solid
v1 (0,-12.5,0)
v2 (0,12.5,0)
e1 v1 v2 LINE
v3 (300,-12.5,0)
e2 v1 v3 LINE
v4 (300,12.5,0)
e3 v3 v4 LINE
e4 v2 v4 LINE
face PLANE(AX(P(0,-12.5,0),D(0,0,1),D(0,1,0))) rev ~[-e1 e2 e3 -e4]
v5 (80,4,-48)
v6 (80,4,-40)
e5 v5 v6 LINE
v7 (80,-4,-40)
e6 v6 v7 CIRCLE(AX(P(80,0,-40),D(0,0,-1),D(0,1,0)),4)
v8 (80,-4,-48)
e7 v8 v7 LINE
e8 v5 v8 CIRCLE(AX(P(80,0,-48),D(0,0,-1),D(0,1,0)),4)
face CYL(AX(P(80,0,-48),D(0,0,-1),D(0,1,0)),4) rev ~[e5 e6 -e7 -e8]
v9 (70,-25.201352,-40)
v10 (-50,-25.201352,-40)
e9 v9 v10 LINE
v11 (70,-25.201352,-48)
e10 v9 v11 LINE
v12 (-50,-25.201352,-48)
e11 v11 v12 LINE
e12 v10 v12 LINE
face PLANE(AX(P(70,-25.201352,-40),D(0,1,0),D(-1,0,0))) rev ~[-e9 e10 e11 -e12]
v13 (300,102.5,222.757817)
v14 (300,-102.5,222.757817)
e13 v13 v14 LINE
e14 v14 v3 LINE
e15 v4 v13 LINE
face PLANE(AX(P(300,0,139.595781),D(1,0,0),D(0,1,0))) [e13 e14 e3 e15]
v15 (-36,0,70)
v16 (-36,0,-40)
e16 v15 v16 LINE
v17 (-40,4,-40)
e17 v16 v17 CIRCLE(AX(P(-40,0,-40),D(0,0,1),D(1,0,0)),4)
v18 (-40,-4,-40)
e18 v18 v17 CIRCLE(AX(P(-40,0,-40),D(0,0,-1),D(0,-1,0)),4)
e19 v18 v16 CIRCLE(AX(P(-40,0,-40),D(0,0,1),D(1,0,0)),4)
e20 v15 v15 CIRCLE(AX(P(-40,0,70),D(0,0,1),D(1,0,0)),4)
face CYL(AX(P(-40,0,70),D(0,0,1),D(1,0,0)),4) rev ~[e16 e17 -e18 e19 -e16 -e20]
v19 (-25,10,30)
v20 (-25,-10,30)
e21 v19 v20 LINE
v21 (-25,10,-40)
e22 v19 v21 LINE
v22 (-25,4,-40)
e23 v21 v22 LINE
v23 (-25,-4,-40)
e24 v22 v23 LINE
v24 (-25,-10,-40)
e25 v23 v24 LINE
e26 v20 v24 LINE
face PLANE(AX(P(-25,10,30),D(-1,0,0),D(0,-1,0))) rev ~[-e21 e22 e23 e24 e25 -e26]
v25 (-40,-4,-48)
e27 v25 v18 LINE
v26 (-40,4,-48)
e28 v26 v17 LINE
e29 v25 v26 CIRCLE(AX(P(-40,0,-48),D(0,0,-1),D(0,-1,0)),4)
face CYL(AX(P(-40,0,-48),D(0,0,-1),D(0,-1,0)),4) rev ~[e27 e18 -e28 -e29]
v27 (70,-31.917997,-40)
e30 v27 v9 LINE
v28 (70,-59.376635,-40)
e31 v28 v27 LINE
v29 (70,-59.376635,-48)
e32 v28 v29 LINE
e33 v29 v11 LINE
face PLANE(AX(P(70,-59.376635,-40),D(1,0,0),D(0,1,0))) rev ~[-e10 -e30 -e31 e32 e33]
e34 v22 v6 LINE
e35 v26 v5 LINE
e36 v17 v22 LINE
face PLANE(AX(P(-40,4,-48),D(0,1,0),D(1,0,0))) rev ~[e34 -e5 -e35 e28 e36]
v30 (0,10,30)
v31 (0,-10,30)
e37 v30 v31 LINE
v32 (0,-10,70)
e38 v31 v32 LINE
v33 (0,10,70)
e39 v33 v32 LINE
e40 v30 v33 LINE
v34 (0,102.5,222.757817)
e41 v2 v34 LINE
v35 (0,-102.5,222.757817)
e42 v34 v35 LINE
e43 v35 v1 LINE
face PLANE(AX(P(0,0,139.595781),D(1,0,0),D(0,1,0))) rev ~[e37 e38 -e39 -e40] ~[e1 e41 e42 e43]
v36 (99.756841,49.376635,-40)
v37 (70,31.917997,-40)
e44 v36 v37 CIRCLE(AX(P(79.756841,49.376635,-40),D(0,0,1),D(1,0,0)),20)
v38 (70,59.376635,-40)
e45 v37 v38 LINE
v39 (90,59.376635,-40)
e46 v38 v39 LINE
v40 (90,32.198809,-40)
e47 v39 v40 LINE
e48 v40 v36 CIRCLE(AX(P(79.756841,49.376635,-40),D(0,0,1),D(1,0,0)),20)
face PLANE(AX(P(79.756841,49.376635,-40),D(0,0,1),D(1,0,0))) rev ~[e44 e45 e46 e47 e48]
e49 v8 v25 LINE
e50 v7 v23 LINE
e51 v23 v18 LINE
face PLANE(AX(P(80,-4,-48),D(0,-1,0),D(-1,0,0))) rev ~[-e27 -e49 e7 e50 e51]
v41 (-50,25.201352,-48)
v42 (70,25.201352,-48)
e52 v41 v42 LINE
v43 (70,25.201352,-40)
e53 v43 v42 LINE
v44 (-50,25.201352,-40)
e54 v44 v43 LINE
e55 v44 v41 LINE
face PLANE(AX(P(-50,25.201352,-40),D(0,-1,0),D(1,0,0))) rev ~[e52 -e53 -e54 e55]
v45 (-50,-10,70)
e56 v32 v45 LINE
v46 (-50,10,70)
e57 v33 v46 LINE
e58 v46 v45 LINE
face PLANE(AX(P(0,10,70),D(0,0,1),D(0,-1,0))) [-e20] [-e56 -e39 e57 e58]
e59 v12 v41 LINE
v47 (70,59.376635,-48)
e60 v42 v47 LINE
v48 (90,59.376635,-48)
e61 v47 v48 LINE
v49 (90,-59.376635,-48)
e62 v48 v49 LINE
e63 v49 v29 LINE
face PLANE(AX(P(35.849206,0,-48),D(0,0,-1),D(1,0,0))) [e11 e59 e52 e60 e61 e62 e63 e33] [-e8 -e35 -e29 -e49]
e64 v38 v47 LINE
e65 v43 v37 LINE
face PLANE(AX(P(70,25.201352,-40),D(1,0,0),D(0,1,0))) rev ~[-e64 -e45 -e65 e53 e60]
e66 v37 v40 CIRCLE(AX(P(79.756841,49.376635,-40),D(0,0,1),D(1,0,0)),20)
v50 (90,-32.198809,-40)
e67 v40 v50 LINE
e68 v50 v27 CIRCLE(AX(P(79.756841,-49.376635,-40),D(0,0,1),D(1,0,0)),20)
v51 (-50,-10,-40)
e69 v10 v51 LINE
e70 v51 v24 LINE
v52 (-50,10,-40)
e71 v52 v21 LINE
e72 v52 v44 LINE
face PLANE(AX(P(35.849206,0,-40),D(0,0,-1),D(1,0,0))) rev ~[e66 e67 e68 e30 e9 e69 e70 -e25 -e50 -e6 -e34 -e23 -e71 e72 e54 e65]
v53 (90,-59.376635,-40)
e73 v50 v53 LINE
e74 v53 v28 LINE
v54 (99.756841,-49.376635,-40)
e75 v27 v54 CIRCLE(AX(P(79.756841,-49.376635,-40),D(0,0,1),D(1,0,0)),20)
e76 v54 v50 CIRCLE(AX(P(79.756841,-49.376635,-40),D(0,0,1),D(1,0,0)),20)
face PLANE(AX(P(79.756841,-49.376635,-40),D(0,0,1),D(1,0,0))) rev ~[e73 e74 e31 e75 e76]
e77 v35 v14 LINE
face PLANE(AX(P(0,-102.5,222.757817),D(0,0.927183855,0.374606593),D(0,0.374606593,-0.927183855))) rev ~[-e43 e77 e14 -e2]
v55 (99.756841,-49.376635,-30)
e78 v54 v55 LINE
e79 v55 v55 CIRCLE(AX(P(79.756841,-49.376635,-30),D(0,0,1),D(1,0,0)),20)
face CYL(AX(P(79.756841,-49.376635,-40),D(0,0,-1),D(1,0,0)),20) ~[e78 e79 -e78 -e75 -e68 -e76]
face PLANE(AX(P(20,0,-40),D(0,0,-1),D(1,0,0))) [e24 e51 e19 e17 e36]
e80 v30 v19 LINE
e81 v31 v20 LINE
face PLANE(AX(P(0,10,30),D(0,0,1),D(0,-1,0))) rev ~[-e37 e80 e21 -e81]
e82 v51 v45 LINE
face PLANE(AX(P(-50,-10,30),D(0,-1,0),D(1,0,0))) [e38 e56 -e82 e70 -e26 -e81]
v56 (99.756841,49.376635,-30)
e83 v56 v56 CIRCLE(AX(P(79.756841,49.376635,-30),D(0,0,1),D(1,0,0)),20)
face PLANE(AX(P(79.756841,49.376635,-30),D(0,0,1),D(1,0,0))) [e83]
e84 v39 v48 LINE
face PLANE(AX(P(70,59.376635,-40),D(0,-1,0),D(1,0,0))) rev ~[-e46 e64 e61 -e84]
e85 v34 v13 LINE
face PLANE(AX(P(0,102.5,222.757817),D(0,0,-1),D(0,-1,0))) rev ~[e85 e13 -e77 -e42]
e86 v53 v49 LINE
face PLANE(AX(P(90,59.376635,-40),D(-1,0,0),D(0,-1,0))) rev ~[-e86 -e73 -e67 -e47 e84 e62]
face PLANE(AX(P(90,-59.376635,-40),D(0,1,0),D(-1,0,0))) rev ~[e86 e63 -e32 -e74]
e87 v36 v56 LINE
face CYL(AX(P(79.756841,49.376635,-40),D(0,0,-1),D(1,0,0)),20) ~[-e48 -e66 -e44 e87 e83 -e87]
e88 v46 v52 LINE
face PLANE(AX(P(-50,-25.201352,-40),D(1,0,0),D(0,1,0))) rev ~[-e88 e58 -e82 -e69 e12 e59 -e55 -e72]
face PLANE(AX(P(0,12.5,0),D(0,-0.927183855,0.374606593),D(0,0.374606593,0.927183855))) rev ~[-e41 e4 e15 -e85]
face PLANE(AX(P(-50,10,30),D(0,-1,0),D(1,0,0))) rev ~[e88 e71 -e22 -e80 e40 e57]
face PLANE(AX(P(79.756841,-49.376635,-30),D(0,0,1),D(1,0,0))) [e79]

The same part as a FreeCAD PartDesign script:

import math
import FreeCAD as App
import Part
import Sketcher
Q = App.Units.Quantity


def add_polygon(sketch, points):
    """Adds a closed chain of lines whose ends are joined by coincident constraints."""
    first, n = sketch.GeometryCount, len(points)
    for a, b in zip(points, points[1:] + points[:1]):
        sketch.addGeometry(Part.LineSegment(App.Vector(*a, 0), App.Vector(*b, 0)), False)
    for i in range(n):
        sketch.addConstraint(Sketcher.Constraint("Coincident", first + i, 2, first + (i + 1) % n, 1))

doc = App.newDocument("Part")
body = doc.addObject("PartDesign::Body", "Body")

# Sketch on YZ plane
sketch1 = body.newObject("Sketcher::SketchObject", "Sketch")
sketch1.AttachmentSupport = (doc.getObject("YZ_Plane"), [""])
sketch1.MapMode = "FlatFace"
add_polygon(sketch1, [(-102, 223), (-12, 0), (12, 0), (102, 223)])  # lines 0-3
sketch1.addConstraint(Sketcher.Constraint("Horizontal", 1))
sketch1.addConstraint(Sketcher.Constraint("Horizontal", 3))
sketch1.addConstraint(Sketcher.Constraint("Symmetric", 0, 2, 1, 2, -1, 1))
sketch1.addConstraint(Sketcher.Constraint("Equal", 0, 2))
sketch1.addConstraint(Sketcher.Constraint("DistanceX", 1, 1, 1, 2, 25.0))
sketch1.addConstraint(Sketcher.Constraint("DistanceX", 3, 2, 3, 1, 205.0))
sketch1.addConstraint(Sketcher.Constraint("Angle", 0, Q("-68 deg")))
pad1 = body.newObject("PartDesign::Pad", "Pad")
pad1.Profile = sketch1
pad1.Length = 300

# Sketch on YZ plane
sketch2 = body.newObject("Sketcher::SketchObject", "Sketch001")
sketch2.AttachmentSupport = (doc.getObject("YZ_Plane"), [""])
sketch2.MapMode = "FlatFace"
add_polygon(sketch2, [(10, 70), (10, 30), (-10, 30), (-10, 70)])  # lines 0-3
sketch2.addConstraint(Sketcher.Constraint("Vertical", 0))
sketch2.addConstraint(Sketcher.Constraint("Horizontal", 1))
sketch2.addConstraint(Sketcher.Constraint("Vertical", 2))
sketch2.addConstraint(Sketcher.Constraint("Horizontal", 3))
sketch2.addConstraint(Sketcher.Constraint("DistanceX", 1, 2, 1, 1, 20.0))
sketch2.addConstraint(Sketcher.Constraint("DistanceY", 0, 2, 0, 1, 40.0))
sketch2.addConstraint(Sketcher.Constraint("DistanceX", -1, 1, 0, 2, 10.0))
sketch2.addConstraint(Sketcher.Constraint("DistanceY", -1, 1, 0, 2, 30.0))
pad2 = body.newObject("PartDesign::Pad", "Pad001")
pad2.Profile = sketch2
pad2.Length = 50
pad2.Reversed = True

# Sketch on XY plane
sketch3 = body.newObject("Sketcher::SketchObject", "Sketch002")
sketch3.AttachmentSupport = (doc.getObject("XY_Plane"), [""])
sketch3.MapMode = "FlatFace"
sketch3.AttachmentOffset = App.Placement(App.Vector(0, 0, 30), App.Rotation())
add_polygon(sketch3, [(-50, -10), (-50, 10), (-25, 10), (-25, -10)])  # lines 0-3
sketch3.addConstraint(Sketcher.Constraint("Vertical", 0))
sketch3.addConstraint(Sketcher.Constraint("Horizontal", 1))
sketch3.addConstraint(Sketcher.Constraint("Vertical", 2))
sketch3.addConstraint(Sketcher.Constraint("Horizontal", 3))
sketch3.addConstraint(Sketcher.Constraint("DistanceX", 1, 1, 1, 2, 25.0))
sketch3.addConstraint(Sketcher.Constraint("DistanceY", 0, 1, 0, 2, 20.0))
sketch3.addConstraint(Sketcher.Constraint("DistanceX", 0, 2, -1, 1, 50.0))
sketch3.addConstraint(Sketcher.Constraint("DistanceY", -1, 1, 0, 2, 10.0))
pad3 = body.newObject("PartDesign::Pad", "Pad002")
pad3.Profile = sketch3
pad3.Length = 70
pad3.Reversed = True

# Sketch on XY plane
sketch4 = body.newObject("Sketcher::SketchObject", "Sketch003")
sketch4.AttachmentSupport = (doc.getObject("XY_Plane"), [""])
sketch4.MapMode = "FlatFace"
sketch4.AttachmentOffset = App.Placement(App.Vector(0, 0, 70), App.Rotation())
sketch4.addGeometry(Part.Circle(App.Vector(-40, 0, 0), App.Vector(0, 0, 1), 4), False)
sketch4.addConstraint(Sketcher.Constraint("PointOnObject", 0, 3, -1))
sketch4.addConstraint(Sketcher.Constraint("Diameter", 0, 8.0))
sketch4.addConstraint(Sketcher.Constraint("DistanceX", 0, 3, -1, 1, 40.0))
pocket1 = body.newObject("PartDesign::Pocket", "Pocket")
pocket1.Profile = sketch4
pocket1.Length = 120

# Sketch on XY plane
sketch5 = body.newObject("Sketcher::SketchObject", "Sketch004")
sketch5.AttachmentSupport = (doc.getObject("XY_Plane"), [""])
sketch5.MapMode = "FlatFace"
sketch5.AttachmentOffset = App.Placement(App.Vector(0, 0, -40), App.Rotation())
add_polygon(sketch5, [(-50, 25), (70, 25), (70, 59), (90, 59), (90, -59), (70, -59), (70, -25), (-50, -25)])  # lines 0-7
sketch5.addConstraint(Sketcher.Constraint("Horizontal", 0))
sketch5.addConstraint(Sketcher.Constraint("Vertical", 1))
sketch5.addConstraint(Sketcher.Constraint("Horizontal", 2))
sketch5.addConstraint(Sketcher.Constraint("Vertical", 3))
sketch5.addConstraint(Sketcher.Constraint("Horizontal", 4))
sketch5.addConstraint(Sketcher.Constraint("Vertical", 5))
sketch5.addConstraint(Sketcher.Constraint("Horizontal", 6))
sketch5.addConstraint(Sketcher.Constraint("Vertical", 7))
sketch5.addConstraint(Sketcher.Constraint("Symmetric", 1, 2, 4, 2, -1))
sketch5.addConstraint(Sketcher.Constraint("Equal", 1, 5))
sketch5.addConstraint(Sketcher.Constraint("DistanceX", 0, 1, 0, 2, 120.0))
sketch5.addConstraint(Sketcher.Constraint("DistanceX", 2, 1, 2, 2, 20.0))
sketch5.addConstraint(Sketcher.Constraint("DistanceX", -1, 1, 0, 2, 70.0))
sketch5.addConstraint(Sketcher.Constraint("DistanceY", 3, 2, 3, 1, 118.75327))
sketch5.addConstraint(Sketcher.Constraint("DistanceY", 1, 1, 1, 2, 34.175283))
pad4 = body.newObject("PartDesign::Pad", "Pad003")
pad4.Profile = sketch5
pad4.Length = 8
pad4.Reversed = True

# Sketch on XY plane
sketch6 = body.newObject("Sketcher::SketchObject", "Sketch005")
sketch6.AttachmentSupport = (doc.getObject("XY_Plane"), [""])
sketch6.MapMode = "FlatFace"
sketch6.AttachmentOffset = App.Placement(App.Vector(0, 0, -40), App.Rotation())
sketch6.addGeometry(Part.Circle(App.Vector(80, -49, 0), App.Vector(0, 0, 1), 20), False)
sketch6.addGeometry(Part.Circle(App.Vector(80, 49, 0), App.Vector(0, 0, 1), 20), False)
sketch6.addConstraint(Sketcher.Constraint("Equal", 0, 1))
sketch6.addConstraint(Sketcher.Constraint("Symmetric", 0, 3, 1, 3, -1))
sketch6.addConstraint(Sketcher.Constraint("Diameter", 0, 40.0))
sketch6.addConstraint(Sketcher.Constraint("DistanceX", -1, 1, 0, 3, 79.756841))
sketch6.addConstraint(Sketcher.Constraint("DistanceY", 0, 3, 1, 3, 98.75327))
pad5 = body.newObject("PartDesign::Pad", "Pad004")
pad5.Profile = sketch6
pad5.Length = 10

# Sketch on XY plane
sketch7 = body.newObject("Sketcher::SketchObject", "Sketch006")
sketch7.AttachmentSupport = (doc.getObject("XY_Plane"), [""])
sketch7.MapMode = "FlatFace"
sketch7.AttachmentOffset = App.Placement(App.Vector(0, 0, -48), App.Rotation())
sketch7.addGeometry(Part.ArcOfCircle(Part.Circle(App.Vector(80, 0, 0), App.Vector(0, 0, 1), 4), math.radians(-90), math.radians(90)), False)
sketch7.addGeometry(Part.LineSegment(App.Vector(80, -4, 0), App.Vector(-40, -4, 0)), False)
sketch7.addGeometry(Part.ArcOfCircle(Part.Circle(App.Vector(-40, 0, 0), App.Vector(0, 0, 1), 4), math.radians(90), math.radians(270)), False)
sketch7.addGeometry(Part.LineSegment(App.Vector(-40, 4, 0), App.Vector(80, 4, 0)), False)
sketch7.addConstraint(Sketcher.Constraint("Tangent", 0, 1, 1, 1))
sketch7.addConstraint(Sketcher.Constraint("Tangent", 1, 2, 2, 2))
sketch7.addConstraint(Sketcher.Constraint("Tangent", 2, 1, 3, 1))
sketch7.addConstraint(Sketcher.Constraint("Tangent", 3, 2, 0, 2))
sketch7.addConstraint(Sketcher.Constraint("Horizontal", 1))
sketch7.addConstraint(Sketcher.Constraint("Horizontal", 3))
sketch7.addConstraint(Sketcher.Constraint("PointOnObject", 0, 3, -1))
sketch7.addConstraint(Sketcher.Constraint("Radius", 0, 4.0))
sketch7.addConstraint(Sketcher.Constraint("DistanceX", 1, 2, 1, 1, 120.0))
sketch7.addConstraint(Sketcher.Constraint("DistanceX", -1, 1, 0, 3, 80.0))
pocket2 = body.newObject("PartDesign::Pocket", "Pocket001")
pocket2.Profile = sketch7
pocket2.Length = 8
pocket2.Reversed = True

doc.recompute()
